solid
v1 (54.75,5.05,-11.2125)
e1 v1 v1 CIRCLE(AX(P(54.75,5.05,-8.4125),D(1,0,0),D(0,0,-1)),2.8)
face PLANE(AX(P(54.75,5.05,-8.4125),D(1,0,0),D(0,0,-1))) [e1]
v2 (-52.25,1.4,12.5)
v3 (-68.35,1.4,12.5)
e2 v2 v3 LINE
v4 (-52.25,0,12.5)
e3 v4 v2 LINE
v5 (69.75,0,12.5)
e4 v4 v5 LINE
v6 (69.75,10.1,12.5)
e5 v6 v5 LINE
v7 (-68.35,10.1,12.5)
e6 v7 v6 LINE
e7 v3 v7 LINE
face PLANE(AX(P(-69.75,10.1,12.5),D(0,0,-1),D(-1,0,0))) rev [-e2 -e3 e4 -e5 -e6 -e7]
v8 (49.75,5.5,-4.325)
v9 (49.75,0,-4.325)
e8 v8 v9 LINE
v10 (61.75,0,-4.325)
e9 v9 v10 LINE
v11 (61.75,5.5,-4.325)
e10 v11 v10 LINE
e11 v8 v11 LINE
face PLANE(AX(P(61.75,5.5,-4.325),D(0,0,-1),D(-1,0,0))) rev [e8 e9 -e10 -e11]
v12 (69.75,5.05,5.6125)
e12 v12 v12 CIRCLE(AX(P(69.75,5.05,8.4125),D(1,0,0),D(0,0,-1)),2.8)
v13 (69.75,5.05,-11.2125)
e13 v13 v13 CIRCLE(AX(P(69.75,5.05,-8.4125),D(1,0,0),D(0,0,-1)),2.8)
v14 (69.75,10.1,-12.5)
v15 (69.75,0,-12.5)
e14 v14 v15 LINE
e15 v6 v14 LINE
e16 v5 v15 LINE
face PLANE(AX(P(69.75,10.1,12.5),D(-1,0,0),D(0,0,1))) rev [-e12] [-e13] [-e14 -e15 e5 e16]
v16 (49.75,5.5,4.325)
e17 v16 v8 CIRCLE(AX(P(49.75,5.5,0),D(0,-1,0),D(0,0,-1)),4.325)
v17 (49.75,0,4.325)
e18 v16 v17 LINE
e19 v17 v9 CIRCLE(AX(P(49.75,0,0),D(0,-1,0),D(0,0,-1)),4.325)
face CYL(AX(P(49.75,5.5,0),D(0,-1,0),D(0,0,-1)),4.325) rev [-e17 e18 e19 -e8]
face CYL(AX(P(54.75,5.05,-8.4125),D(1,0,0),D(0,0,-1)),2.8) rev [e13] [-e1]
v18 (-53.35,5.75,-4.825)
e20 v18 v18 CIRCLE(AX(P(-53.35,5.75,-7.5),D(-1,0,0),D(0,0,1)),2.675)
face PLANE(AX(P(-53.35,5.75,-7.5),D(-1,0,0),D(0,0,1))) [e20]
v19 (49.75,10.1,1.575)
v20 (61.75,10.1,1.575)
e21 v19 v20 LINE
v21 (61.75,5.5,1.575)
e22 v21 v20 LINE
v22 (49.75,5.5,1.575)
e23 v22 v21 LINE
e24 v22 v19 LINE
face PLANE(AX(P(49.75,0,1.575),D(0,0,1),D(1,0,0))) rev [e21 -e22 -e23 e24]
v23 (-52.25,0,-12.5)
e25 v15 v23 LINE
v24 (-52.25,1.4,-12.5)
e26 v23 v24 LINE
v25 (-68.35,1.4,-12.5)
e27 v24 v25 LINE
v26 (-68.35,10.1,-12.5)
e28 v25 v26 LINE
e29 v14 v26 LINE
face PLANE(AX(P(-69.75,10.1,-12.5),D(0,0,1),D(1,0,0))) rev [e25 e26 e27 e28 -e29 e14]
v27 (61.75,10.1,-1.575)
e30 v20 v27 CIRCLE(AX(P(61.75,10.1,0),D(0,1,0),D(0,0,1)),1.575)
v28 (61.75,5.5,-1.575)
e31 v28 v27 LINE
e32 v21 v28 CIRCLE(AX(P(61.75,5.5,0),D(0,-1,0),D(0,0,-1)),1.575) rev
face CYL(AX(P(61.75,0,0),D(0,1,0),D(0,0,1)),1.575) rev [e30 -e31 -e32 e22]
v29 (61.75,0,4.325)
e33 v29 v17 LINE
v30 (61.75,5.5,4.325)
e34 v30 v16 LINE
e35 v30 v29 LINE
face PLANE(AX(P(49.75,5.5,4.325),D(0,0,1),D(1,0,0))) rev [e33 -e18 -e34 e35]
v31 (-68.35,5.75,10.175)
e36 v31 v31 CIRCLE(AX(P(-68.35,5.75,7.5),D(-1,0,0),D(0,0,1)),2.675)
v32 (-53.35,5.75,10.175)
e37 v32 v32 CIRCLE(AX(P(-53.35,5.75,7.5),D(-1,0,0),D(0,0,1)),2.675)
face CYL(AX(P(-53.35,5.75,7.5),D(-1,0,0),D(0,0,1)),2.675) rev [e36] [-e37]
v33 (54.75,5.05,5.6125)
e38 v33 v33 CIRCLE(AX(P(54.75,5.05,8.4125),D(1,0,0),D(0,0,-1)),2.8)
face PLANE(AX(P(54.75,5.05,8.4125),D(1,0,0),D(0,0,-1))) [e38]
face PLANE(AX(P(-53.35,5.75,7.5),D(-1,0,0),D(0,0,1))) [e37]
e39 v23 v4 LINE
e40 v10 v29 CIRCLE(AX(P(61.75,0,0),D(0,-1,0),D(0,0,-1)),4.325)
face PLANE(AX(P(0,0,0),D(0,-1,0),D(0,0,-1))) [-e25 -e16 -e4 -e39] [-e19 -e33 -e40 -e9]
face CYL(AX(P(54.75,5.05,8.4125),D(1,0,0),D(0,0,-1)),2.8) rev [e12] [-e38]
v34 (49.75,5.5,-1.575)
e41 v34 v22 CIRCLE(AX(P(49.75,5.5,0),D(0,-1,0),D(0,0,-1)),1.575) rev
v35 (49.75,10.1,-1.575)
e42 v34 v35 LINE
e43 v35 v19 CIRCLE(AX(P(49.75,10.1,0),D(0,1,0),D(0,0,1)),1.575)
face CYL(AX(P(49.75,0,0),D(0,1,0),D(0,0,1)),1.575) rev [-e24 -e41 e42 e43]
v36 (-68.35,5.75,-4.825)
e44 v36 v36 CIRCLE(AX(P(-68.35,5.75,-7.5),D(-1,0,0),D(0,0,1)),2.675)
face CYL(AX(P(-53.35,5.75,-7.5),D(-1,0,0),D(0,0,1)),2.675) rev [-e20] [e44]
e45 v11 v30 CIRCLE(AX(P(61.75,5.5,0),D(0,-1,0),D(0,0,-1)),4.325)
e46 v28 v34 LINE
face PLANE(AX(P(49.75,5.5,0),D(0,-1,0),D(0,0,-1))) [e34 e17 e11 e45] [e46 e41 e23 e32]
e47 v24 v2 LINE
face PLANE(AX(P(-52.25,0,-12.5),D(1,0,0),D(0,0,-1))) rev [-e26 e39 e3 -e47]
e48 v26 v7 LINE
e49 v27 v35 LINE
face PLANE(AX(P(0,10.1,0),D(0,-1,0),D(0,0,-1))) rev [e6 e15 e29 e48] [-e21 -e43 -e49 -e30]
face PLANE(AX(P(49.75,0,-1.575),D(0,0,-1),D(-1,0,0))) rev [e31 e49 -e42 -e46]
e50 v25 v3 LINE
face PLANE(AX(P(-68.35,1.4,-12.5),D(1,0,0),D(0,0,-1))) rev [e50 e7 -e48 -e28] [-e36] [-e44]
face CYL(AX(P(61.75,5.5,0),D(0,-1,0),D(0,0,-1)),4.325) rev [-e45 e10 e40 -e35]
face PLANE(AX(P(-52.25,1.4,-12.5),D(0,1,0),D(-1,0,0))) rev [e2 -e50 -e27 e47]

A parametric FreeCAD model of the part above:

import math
import FreeCAD as App
import Part
import Sketcher
from FreeCAD import Vector
Q = App.Units.Quantity

doc = App.newDocument("Part")
params = doc.addObject("Spreadsheet::Sheet", "Params")
for row, (alias, value) in enumerate([
    ("sketch1_height", "25 mm"),
    ("sketch1_width", "139.5 mm"),
    ("pad1_length", "10.1 mm"),
    ("sketch2_width", "17.5 mm"),
    ("sketch2_width2", "16.1 mm"),
    ("sketch2_height", "10.1 mm"),
    ("sketch3_diameter", "5.35 mm"),
    ("pocket2_length", "15 mm"),
    ("sketch4_width", "12 mm"),
    ("sketch5_width", "12 mm"),
    ("pocket4_length", "5.5 mm"),
    ("sketch6_diameter", "5.6 mm"),
    ("pocket5_length", "15 mm"),
], start=1):
    params.set(f"A{row}", alias)
    params.set(f"B{row}", "=" + value)
    params.setAlias(f"B{row}", alias)

body = doc.addObject("PartDesign::Body", "Body")

sketch1 = body.newObject("Sketcher::SketchObject", "Sketch")
sketch1.AttachmentSupport = (doc.getObject("XZ_Plane"), [""])
sketch1.MapMode = "FlatFace"
sketch1.addGeometry(Part.LineSegment(Vector(-70, -12, 0), Vector(-70, 12, 0)), False)
sketch1.addGeometry(Part.LineSegment(Vector(-70, 12, 0), Vector(70, 12, 0)), False)
sketch1.addGeometry(Part.LineSegment(Vector(70, 12, 0), Vector(70, -12, 0)), False)
sketch1.addGeometry(Part.LineSegment(Vector(70, -12, 0), Vector(-70, -12, 0)), False)
sketch1.addConstraint(Sketcher.Constraint("Coincident", 0, 2, 1, 1))
sketch1.addConstraint(Sketcher.Constraint("Coincident", 1, 2, 2, 1))
sketch1.addConstraint(Sketcher.Constraint("Coincident", 2, 2, 3, 1))
sketch1.addConstraint(Sketcher.Constraint("Coincident", 3, 2, 0, 1))
sketch1.addConstraint(Sketcher.Constraint("Vertical", 0))
sketch1.addConstraint(Sketcher.Constraint("Horizontal", 1))
sketch1.addConstraint(Sketcher.Constraint("Vertical", 2))
sketch1.addConstraint(Sketcher.Constraint("Horizontal", 3))
sketch1.addConstraint(Sketcher.Constraint("Symmetric", 0, 2, 2, 2, -1, 1))
sketch1.addConstraint(Sketcher.Constraint("DistanceY", 0, 1, 0, 2, Q("25 mm")))
sketch1.addConstraint(Sketcher.Constraint("DistanceX", 1, 1, 1, 2, Q("139.5 mm")))
sketch1.setExpression("Constraints[9]", "Params.sketch1_height")
sketch1.setExpression("Constraints[10]", "Params.sketch1_width")
pad1 = body.newObject("PartDesign::Pad", "Pad")
pad1.Profile = sketch1
pad1.setExpression("Length", "Params.pad1_length")
pad1.Reversed = True

sketch2 = body.newObject("Sketcher::SketchObject", "Sketch001")
sketch2.AttachmentSupport = (doc.getObject("XY_Plane"), [""])
sketch2.MapMode = "FlatFace"
sketch2.AttachmentOffset = App.Placement(Vector(0, 0, 12.5), App.Rotation())
sketch2.addGeometry(Part.LineSegment(Vector(-69.8, 10.1, 0), Vector(-69.8, 0, 0)), False)
sketch2.addGeometry(Part.LineSegment(Vector(-69.8, 0, 0), Vector(-52.2, 0, 0)), False)
sketch2.addGeometry(Part.LineSegment(Vector(-52.2, 0, 0), Vector(-52.2, 1.4, 0)), False)
sketch2.addGeometry(Part.LineSegment(Vector(-52.2, 1.4, 0), Vector(-68.3, 1.4, 0)), False)
sketch2.addGeometry(Part.LineSegment(Vector(-68.3, 1.4, 0), Vector(-68.3, 10.1, 0)), False)
sketch2.addGeometry(Part.LineSegment(Vector(-68.3, 10.1, 0), Vector(-69.8, 10.1, 0)), False)
sketch2.addConstraint(Sketcher.Constraint("Coincident", 0, 2, 1, 1))
sketch2.addConstraint(Sketcher.Constraint("Coincident", 1, 2, 2, 1))
sketch2.addConstraint(Sketcher.Constraint("Coincident", 2, 2, 3, 1))
sketch2.addConstraint(Sketcher.Constraint("Coincident", 3, 2, 4, 1))
sketch2.addConstraint(Sketcher.Constraint("Coincident", 4, 2, 5, 1))
sketch2.addConstraint(Sketcher.Constraint("Coincident", 5, 2, 0, 1))
sketch2.addConstraint(Sketcher.Constraint("Vertical", 0))
sketch2.addConstraint(Sketcher.Constraint("Horizontal", 1))
sketch2.addConstraint(Sketcher.Constraint("Vertical", 2))
sketch2.addConstraint(Sketcher.Constraint("Horizontal", 3))
sketch2.addConstraint(Sketcher.Constraint("Vertical", 4))
sketch2.addConstraint(Sketcher.Constraint("Horizontal", 5))
sketch2.addConstraint(Sketcher.Constraint("PointOnObject", 0, 2, -1))
sketch2.addConstraint(Sketcher.Constraint("Equal", 5, 2))
sketch2.addConstraint(Sketcher.Constraint("DistanceX", 1, 1, 1, 2, Q("17.5 mm")))
sketch2.addConstraint(Sketcher.Constraint("DistanceX", 3, 2, 3, 1, Q("16.1 mm")))
sketch2.addConstraint(Sketcher.Constraint("DistanceY", 0, 2, 0, 1, Q("10.1 mm")))
sketch2.addConstraint(Sketcher.Constraint("DistanceX", 0, 2, -1, 1, Q("69.75 mm")))
sketch2.setExpression("Constraints[14]", "Params.sketch2_width")
sketch2.setExpression("Constraints[15]", "Params.sketch2_width2")
sketch2.setExpression("Constraints[16]", "Params.sketch2_height")
pocket1 = body.newObject("PartDesign::Pocket", "Pocket")
pocket1.Profile = sketch2
pocket1.Type = "ThroughAll"

sketch3 = body.newObject("Sketcher::SketchObject", "Sketch002")
sketch3.AttachmentSupport = (doc.getObject("YZ_Plane"), [""])
sketch3.MapMode = "FlatFace"
sketch3.AttachmentOffset = App.Placement(Vector(0, 0, -68.35), App.Rotation())
sketch3.addGeometry(Part.Circle(Vector(5.8, -7.5, 0), Vector(0, 0, 1), 2.7), False)
sketch3.addGeometry(Part.Circle(Vector(5.8, 7.5, 0), Vector(0, 0, 1), 2.7), False)
sketch3.addConstraint(Sketcher.Constraint("Equal", 0, 1))
sketch3.addConstraint(Sketcher.Constraint("Symmetric", 0, 3, 1, 3, -1))
sketch3.addConstraint(Sketcher.Constraint("Diameter", 0, Q("5.35 mm")))
sketch3.addConstraint(Sketcher.Constraint("DistanceY", 0, 3, 1, 3, Q("15 mm")))
sketch3.addConstraint(Sketcher.Constraint("DistanceX", -1, 1, 0, 3, Q("5.75 mm")))
sketch3.setExpression("Constraints[2]", "Params.sketch3_diameter")
pocket2 = body.newObject("PartDesign::Pocket", "Pocket001")
pocket2.Profile = sketch3
pocket2.setExpression("Length", "Params.pocket2_length")
pocket2.Reversed = True

sketch4 = body.newObject("Sketcher::SketchObject", "Sketch003")
sketch4.AttachmentSupport = (doc.getObject("XZ_Plane"), [""])
sketch4.MapMode = "FlatFace"
sketch4.AttachmentOffset = App.Placement(Vector(0, 0, -10.1), App.Rotation())
sketch4.addGeometry(Part.LineSegment(Vector(61.8, -1.6, 0), Vector(49.8, -1.6, 0)), False)
sketch4.addGeometry(Part.ArcOfCircle(Part.Circle(Vector(49.8, 0, 0), Vector(0, 0, 1), 1.6), math.radians(90), math.radians(270)), False)
sketch4.addGeometry(Part.LineSegment(Vector(49.8, 1.6, 0), Vector(61.8, 1.6, 0)), False)
sketch4.addGeometry(Part.ArcOfCircle(Part.Circle(Vector(61.8, 0, 0), Vector(0, 0, 1), 1.6), math.radians(-90), math.radians(90)), False)
sketch4.addConstraint(Sketcher.Constraint("Tangent", 0, 2, 1, 2))
sketch4.addConstraint(Sketcher.Constraint("Tangent", 1, 1, 2, 1))
sketch4.addConstraint(Sketcher.Constraint("Tangent", 2, 2, 3, 2))
sketch4.addConstraint(Sketcher.Constraint("Tangent", 3, 1, 0, 1))
sketch4.addConstraint(Sketcher.Constraint("Horizontal", 0))
sketch4.addConstraint(Sketcher.Constraint("Horizontal", 2))
sketch4.addConstraint(Sketcher.Constraint("PointOnObject", 1, 3, -1))
sketch4.addConstraint(Sketcher.Constraint("DistanceX", 0, 2, 0, 1, Q("12 mm")))
sketch4.addConstraint(Sketcher.Constraint("Radius", 1, Q("1.575 mm")))
sketch4.addConstraint(Sketcher.Constraint("DistanceX", -1, 1, 1, 3, Q("49.75 mm")))
sketch4.setExpression("Constraints[7]", "Params.sketch4_width")
pocket3 = body.newObject("PartDesign::Pocket", "Pocket002")
pocket3.Profile = sketch4
pocket3.Type = "ThroughAll"
pocket3.Reversed = True

sketch5 = body.newObject("Sketcher::SketchObject", "Sketch004")
sketch5.AttachmentSupport = (doc.getObject("XZ_Plane"), [""])
sketch5.MapMode = "FlatFace"
sketch5.addGeometry(Part.LineSegment(Vector(61.8, 4.3, 0), Vector(49.8, 4.3, 0)), False)
sketch5.addGeometry(Part.ArcOfCircle(Part.Circle(Vector(49.8, 0, 0), Vector(0, 0, 1), 4.3), math.radians(90), math.radians(270)), False)
sketch5.addGeometry(Part.LineSegment(Vector(49.8, -4.3, 0), Vector(61.8, -4.3, 0)), False)
sketch5.addGeometry(Part.ArcOfCircle(Part.Circle(Vector(61.8, 0, 0), Vector(0, 0, 1), 4.3), math.radians(-90), math.radians(90)), False)
sketch5.addConstraint(Sketcher.Constraint("Tangent", 0, 2, 1, 1))
sketch5.addConstraint(Sketcher.Constraint("Tangent", 1, 2, 2, 1))
sketch5.addConstraint(Sketcher.Constraint("Tangent", 2, 2, 3, 1))
sketch5.addConstraint(Sketcher.Constraint("Tangent", 3, 2, 0, 1))
sketch5.addConstraint(Sketcher.Constraint("Horizontal", 0))
sketch5.addConstraint(Sketcher.Constraint("Horizontal", 2))
sketch5.addConstraint(Sketcher.Constraint("PointOnObject", 1, 3, -1))
sketch5.addConstraint(Sketcher.Constraint("DistanceX", 0, 2, 0, 1, Q("12 mm")))
sketch5.addConstraint(Sketcher.Constraint("Radius", 1, Q("4.325 mm")))
sketch5.addConstraint(Sketcher.Constraint("DistanceX", -1, 1, 1, 3, Q("49.75 mm")))
sketch5.setExpression("Constraints[7]", "Params.sketch5_width")
pocket4 = body.newObject("PartDesign::Pocket", "Pocket003")
pocket4.Profile = sketch5
pocket4.setExpression("Length", "Params.pocket4_length")

sketch6 = body.newObject("Sketcher::SketchObject", "Sketch005")
sketch6.AttachmentSupport = (doc.getObject("YZ_Plane"), [""])
sketch6.MapMode = "FlatFace"
sketch6.AttachmentOffset = App.Placement(Vector(0, 0, 69.75), App.Rotation())
sketch6.addGeometry(Part.Circle(Vector(5, 8.4, 0), Vector(0, 0, 1), 2.8), False)
sketch6.addGeometry(Part.Circle(Vector(5, -8.4, 0), Vector(0, 0, 1), 2.8), False)
sketch6.addConstraint(Sketcher.Constraint("Equal", 0, 1))
sketch6.addConstraint(Sketcher.Constraint("Symmetric", 0, 3, 1, 3, -1))
sketch6.addConstraint(Sketcher.Constraint("Diameter", 0, Q("5.6 mm")))
sketch6.addConstraint(Sketcher.Constraint("DistanceX", -1, 1, 0, 3, Q("5.05 mm")))
sketch6.addConstraint(Sketcher.Constraint("DistanceY", 1, 3, 0, 3, Q("16.825 mm")))
sketch6.setExpression("Constraints[2]", "Params.sketch6_diameter")
pocket5 = body.newObject("PartDesign::Pocket", "Pocket004")
pocket5.Profile = sketch6
pocket5.setExpression("Length", "Params.pocket5_length")

doc.recompute()
